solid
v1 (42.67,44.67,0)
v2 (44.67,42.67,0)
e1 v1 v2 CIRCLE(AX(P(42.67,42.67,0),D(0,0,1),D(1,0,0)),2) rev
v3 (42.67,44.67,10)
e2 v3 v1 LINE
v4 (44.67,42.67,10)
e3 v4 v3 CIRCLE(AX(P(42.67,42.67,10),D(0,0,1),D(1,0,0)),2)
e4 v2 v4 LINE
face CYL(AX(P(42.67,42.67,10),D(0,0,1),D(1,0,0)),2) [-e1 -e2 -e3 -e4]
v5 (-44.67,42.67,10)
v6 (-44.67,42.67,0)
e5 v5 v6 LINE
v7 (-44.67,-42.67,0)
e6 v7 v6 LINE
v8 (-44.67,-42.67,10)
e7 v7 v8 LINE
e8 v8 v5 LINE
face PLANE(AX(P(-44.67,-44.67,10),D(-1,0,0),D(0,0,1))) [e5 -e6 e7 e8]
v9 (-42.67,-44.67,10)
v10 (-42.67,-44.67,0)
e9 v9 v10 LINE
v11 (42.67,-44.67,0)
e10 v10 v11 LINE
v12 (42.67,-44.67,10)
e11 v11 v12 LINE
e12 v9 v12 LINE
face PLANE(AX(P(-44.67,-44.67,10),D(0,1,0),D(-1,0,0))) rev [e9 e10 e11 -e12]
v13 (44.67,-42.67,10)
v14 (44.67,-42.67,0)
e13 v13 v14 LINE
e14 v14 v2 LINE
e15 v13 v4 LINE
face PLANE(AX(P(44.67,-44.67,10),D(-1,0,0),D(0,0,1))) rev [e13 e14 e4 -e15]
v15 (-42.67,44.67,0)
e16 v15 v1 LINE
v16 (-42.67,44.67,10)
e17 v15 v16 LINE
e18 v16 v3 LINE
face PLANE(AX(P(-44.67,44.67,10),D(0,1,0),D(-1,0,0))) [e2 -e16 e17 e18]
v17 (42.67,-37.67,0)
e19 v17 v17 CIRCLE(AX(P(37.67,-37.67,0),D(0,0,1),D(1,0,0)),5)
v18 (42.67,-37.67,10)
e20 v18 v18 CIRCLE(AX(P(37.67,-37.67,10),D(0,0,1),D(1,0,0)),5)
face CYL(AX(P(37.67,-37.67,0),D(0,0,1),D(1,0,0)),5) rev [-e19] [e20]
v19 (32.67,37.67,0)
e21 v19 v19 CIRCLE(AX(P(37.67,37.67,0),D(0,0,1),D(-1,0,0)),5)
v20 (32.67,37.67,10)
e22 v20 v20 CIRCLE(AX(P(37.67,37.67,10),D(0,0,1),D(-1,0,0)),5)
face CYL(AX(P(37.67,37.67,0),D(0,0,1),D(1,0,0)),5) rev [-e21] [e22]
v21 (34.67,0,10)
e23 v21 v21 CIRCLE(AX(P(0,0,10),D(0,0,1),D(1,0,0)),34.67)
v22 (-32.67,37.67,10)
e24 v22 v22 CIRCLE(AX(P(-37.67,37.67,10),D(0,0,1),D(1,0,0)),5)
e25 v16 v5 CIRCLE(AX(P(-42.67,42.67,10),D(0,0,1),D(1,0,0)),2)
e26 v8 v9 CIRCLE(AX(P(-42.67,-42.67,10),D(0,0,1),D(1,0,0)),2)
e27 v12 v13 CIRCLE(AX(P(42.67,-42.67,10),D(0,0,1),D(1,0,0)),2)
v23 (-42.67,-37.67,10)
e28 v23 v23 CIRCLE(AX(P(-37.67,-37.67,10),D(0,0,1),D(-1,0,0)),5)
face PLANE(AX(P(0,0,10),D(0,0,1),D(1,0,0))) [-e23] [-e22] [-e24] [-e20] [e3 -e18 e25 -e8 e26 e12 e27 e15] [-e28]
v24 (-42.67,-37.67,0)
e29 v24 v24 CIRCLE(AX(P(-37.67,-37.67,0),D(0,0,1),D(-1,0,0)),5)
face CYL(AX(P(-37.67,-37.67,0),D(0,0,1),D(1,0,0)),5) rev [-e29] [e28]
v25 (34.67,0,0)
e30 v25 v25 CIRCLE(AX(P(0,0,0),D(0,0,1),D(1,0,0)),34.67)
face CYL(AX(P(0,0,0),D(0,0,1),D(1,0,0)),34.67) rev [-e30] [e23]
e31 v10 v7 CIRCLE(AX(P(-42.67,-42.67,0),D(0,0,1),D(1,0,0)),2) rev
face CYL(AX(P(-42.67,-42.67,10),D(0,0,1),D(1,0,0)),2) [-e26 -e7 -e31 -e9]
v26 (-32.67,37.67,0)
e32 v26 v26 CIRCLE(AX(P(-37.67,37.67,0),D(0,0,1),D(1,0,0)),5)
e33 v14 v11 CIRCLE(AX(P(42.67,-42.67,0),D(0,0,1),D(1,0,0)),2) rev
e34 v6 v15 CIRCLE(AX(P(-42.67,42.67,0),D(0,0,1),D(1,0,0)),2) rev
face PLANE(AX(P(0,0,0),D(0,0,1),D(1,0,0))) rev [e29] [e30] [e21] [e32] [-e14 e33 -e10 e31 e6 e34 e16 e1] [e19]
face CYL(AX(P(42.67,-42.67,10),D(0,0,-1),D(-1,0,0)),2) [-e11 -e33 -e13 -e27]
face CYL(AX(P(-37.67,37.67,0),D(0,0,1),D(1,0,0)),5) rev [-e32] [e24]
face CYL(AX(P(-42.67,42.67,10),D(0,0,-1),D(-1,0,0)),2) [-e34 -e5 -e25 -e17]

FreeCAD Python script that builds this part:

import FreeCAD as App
import Part
import Sketcher
Q = App.Units.Quantity


def edges_at(feature, points):
    """Names of the edges that pass closest to the given points."""
    edges = feature.Shape.Edges
    near = lambda p: min(range(len(edges)), key=lambda i: edges[i].distToShape(Part.Vertex(*p))[0])
    return sorted({f"Edge{near(p) + 1}" for p in points})


def add_polygon(sketch, points):
    """Adds a closed chain of lines whose ends are joined by coincident constraints."""
    first, n = sketch.GeometryCount, len(points)
    for a, b in zip(points, points[1:] + points[:1]):
        sketch.addGeometry(Part.LineSegment(App.Vector(*a, 0), App.Vector(*b, 0)), False)
    for i in range(n):
        sketch.addConstraint(Sketcher.Constraint("Coincident", first + i, 2, first + (i + 1) % n, 1))

doc = App.newDocument("Part")
body = doc.addObject("PartDesign::Body", "Body")

sketch1 = body.newObject("Sketcher::SketchObject", "Sketch")
sketch1.AttachmentSupport = (doc.getObject("XY_Plane"), [""])
sketch1.MapMode = "FlatFace"
add_polygon(sketch1, [(-45, 45), (-45, -45), (45, -45), (45, 45)])
sketch1.addConstraint(Sketcher.Constraint("Vertical", 0))
sketch1.addConstraint(Sketcher.Constraint("Horizontal", 1))
sketch1.addConstraint(Sketcher.Constraint("Vertical", 2))
sketch1.addConstraint(Sketcher.Constraint("Horizontal", 3))
sketch1.addConstraint(Sketcher.Constraint("Symmetric", 0, 2, 2, 2, -1, 1))
sketch1.addConstraint(Sketcher.Constraint("Equal", 3, 0))
sketch1.addConstraint(Sketcher.Constraint("DistanceX", 1, 1, 1, 2, Q("89.34 mm")))
pad1 = body.newObject("PartDesign::Pad", "Pad")
pad1.Profile = sketch1
pad1.Length = 10

sketch2 = body.newObject("Sketcher::SketchObject", "Sketch001")
sketch2.AttachmentSupport = (doc.getObject("XY_Plane"), [""])
sketch2.MapMode = "FlatFace"
sketch2.AttachmentOffset = App.Placement(App.Vector(0, 0, 10), App.Rotation())
sketch2.addGeometry(Part.Circle(App.Vector(0, 0, 0), App.Vector(0, 0, 1), 35), False)
sketch2.addConstraint(Sketcher.Constraint("Coincident", 0, 3, -1, 1))
sketch2.addConstraint(Sketcher.Constraint("Diameter", 0, Q("69.34 mm")))
pocket1 = body.newObject("PartDesign::Pocket", "Pocket")
pocket1.Profile = sketch2
pocket1.Length = 10

sketch3 = body.newObject("Sketcher::SketchObject", "Sketch002")
sketch3.AttachmentSupport = (doc.getObject("XY_Plane"), [""])
sketch3.MapMode = "FlatFace"
sketch3.AttachmentOffset = App.Placement(App.Vector(0, 0, 10), App.Rotation())
sketch3.addGeometry(Part.Circle(App.Vector(38, -38, 0), App.Vector(0, 0, 1), 5), False)
sketch3.addGeometry(Part.Circle(App.Vector(-38, -38, 0), App.Vector(0, 0, 1), 5), False)
sketch3.addGeometry(Part.Circle(App.Vector(-38, 38, 0), App.Vector(0, 0, 1), 5), False)
sketch3.addGeometry(Part.Circle(App.Vector(38, 38, 0), App.Vector(0, 0, 1), 5), False)
sketch3.addConstraint(Sketcher.Constraint("Equal", 0, 1))
sketch3.addConstraint(Sketcher.Constraint("Equal", 1, 2))
sketch3.addConstraint(Sketcher.Constraint("Equal", 2, 3))
sketch3.addConstraint(Sketcher.Constraint("Symmetric", 0, 3, 2, 3, -1, 1))
sketch3.addConstraint(Sketcher.Constraint("Symmetric", 1, 3, 3, 3, -1, 1))
sketch3.addConstraint(Sketcher.Constraint("Symmetric", 0, 3, 1, 3, -2))
sketch3.addConstraint(Sketcher.Constraint("Diameter", 0, Q("10 mm")))
sketch3.addConstraint(Sketcher.Constraint("DistanceX", -1, 1, 0, 3, Q("37.67 mm")))
sketch3.addConstraint(Sketcher.Constraint("DistanceY", 0, 3, -1, 1, Q("37.67 mm")))
pocket2 = body.newObject("PartDesign::Pocket", "Pocket001")
pocket2.Profile = sketch3
pocket2.Length = 10
doc.recompute()

fillet = body.newObject("PartDesign::Fillet", "Fillet")
fillet.Base = (pocket2, edges_at(pocket2, [
    (-44.67, -44.67, 5),
    (-44.67, 44.67, 5),
    (44.67, 44.67, 5),
    (44.67, -44.67, 5),
]))
fillet.Radius = 2

doc.recompute()
